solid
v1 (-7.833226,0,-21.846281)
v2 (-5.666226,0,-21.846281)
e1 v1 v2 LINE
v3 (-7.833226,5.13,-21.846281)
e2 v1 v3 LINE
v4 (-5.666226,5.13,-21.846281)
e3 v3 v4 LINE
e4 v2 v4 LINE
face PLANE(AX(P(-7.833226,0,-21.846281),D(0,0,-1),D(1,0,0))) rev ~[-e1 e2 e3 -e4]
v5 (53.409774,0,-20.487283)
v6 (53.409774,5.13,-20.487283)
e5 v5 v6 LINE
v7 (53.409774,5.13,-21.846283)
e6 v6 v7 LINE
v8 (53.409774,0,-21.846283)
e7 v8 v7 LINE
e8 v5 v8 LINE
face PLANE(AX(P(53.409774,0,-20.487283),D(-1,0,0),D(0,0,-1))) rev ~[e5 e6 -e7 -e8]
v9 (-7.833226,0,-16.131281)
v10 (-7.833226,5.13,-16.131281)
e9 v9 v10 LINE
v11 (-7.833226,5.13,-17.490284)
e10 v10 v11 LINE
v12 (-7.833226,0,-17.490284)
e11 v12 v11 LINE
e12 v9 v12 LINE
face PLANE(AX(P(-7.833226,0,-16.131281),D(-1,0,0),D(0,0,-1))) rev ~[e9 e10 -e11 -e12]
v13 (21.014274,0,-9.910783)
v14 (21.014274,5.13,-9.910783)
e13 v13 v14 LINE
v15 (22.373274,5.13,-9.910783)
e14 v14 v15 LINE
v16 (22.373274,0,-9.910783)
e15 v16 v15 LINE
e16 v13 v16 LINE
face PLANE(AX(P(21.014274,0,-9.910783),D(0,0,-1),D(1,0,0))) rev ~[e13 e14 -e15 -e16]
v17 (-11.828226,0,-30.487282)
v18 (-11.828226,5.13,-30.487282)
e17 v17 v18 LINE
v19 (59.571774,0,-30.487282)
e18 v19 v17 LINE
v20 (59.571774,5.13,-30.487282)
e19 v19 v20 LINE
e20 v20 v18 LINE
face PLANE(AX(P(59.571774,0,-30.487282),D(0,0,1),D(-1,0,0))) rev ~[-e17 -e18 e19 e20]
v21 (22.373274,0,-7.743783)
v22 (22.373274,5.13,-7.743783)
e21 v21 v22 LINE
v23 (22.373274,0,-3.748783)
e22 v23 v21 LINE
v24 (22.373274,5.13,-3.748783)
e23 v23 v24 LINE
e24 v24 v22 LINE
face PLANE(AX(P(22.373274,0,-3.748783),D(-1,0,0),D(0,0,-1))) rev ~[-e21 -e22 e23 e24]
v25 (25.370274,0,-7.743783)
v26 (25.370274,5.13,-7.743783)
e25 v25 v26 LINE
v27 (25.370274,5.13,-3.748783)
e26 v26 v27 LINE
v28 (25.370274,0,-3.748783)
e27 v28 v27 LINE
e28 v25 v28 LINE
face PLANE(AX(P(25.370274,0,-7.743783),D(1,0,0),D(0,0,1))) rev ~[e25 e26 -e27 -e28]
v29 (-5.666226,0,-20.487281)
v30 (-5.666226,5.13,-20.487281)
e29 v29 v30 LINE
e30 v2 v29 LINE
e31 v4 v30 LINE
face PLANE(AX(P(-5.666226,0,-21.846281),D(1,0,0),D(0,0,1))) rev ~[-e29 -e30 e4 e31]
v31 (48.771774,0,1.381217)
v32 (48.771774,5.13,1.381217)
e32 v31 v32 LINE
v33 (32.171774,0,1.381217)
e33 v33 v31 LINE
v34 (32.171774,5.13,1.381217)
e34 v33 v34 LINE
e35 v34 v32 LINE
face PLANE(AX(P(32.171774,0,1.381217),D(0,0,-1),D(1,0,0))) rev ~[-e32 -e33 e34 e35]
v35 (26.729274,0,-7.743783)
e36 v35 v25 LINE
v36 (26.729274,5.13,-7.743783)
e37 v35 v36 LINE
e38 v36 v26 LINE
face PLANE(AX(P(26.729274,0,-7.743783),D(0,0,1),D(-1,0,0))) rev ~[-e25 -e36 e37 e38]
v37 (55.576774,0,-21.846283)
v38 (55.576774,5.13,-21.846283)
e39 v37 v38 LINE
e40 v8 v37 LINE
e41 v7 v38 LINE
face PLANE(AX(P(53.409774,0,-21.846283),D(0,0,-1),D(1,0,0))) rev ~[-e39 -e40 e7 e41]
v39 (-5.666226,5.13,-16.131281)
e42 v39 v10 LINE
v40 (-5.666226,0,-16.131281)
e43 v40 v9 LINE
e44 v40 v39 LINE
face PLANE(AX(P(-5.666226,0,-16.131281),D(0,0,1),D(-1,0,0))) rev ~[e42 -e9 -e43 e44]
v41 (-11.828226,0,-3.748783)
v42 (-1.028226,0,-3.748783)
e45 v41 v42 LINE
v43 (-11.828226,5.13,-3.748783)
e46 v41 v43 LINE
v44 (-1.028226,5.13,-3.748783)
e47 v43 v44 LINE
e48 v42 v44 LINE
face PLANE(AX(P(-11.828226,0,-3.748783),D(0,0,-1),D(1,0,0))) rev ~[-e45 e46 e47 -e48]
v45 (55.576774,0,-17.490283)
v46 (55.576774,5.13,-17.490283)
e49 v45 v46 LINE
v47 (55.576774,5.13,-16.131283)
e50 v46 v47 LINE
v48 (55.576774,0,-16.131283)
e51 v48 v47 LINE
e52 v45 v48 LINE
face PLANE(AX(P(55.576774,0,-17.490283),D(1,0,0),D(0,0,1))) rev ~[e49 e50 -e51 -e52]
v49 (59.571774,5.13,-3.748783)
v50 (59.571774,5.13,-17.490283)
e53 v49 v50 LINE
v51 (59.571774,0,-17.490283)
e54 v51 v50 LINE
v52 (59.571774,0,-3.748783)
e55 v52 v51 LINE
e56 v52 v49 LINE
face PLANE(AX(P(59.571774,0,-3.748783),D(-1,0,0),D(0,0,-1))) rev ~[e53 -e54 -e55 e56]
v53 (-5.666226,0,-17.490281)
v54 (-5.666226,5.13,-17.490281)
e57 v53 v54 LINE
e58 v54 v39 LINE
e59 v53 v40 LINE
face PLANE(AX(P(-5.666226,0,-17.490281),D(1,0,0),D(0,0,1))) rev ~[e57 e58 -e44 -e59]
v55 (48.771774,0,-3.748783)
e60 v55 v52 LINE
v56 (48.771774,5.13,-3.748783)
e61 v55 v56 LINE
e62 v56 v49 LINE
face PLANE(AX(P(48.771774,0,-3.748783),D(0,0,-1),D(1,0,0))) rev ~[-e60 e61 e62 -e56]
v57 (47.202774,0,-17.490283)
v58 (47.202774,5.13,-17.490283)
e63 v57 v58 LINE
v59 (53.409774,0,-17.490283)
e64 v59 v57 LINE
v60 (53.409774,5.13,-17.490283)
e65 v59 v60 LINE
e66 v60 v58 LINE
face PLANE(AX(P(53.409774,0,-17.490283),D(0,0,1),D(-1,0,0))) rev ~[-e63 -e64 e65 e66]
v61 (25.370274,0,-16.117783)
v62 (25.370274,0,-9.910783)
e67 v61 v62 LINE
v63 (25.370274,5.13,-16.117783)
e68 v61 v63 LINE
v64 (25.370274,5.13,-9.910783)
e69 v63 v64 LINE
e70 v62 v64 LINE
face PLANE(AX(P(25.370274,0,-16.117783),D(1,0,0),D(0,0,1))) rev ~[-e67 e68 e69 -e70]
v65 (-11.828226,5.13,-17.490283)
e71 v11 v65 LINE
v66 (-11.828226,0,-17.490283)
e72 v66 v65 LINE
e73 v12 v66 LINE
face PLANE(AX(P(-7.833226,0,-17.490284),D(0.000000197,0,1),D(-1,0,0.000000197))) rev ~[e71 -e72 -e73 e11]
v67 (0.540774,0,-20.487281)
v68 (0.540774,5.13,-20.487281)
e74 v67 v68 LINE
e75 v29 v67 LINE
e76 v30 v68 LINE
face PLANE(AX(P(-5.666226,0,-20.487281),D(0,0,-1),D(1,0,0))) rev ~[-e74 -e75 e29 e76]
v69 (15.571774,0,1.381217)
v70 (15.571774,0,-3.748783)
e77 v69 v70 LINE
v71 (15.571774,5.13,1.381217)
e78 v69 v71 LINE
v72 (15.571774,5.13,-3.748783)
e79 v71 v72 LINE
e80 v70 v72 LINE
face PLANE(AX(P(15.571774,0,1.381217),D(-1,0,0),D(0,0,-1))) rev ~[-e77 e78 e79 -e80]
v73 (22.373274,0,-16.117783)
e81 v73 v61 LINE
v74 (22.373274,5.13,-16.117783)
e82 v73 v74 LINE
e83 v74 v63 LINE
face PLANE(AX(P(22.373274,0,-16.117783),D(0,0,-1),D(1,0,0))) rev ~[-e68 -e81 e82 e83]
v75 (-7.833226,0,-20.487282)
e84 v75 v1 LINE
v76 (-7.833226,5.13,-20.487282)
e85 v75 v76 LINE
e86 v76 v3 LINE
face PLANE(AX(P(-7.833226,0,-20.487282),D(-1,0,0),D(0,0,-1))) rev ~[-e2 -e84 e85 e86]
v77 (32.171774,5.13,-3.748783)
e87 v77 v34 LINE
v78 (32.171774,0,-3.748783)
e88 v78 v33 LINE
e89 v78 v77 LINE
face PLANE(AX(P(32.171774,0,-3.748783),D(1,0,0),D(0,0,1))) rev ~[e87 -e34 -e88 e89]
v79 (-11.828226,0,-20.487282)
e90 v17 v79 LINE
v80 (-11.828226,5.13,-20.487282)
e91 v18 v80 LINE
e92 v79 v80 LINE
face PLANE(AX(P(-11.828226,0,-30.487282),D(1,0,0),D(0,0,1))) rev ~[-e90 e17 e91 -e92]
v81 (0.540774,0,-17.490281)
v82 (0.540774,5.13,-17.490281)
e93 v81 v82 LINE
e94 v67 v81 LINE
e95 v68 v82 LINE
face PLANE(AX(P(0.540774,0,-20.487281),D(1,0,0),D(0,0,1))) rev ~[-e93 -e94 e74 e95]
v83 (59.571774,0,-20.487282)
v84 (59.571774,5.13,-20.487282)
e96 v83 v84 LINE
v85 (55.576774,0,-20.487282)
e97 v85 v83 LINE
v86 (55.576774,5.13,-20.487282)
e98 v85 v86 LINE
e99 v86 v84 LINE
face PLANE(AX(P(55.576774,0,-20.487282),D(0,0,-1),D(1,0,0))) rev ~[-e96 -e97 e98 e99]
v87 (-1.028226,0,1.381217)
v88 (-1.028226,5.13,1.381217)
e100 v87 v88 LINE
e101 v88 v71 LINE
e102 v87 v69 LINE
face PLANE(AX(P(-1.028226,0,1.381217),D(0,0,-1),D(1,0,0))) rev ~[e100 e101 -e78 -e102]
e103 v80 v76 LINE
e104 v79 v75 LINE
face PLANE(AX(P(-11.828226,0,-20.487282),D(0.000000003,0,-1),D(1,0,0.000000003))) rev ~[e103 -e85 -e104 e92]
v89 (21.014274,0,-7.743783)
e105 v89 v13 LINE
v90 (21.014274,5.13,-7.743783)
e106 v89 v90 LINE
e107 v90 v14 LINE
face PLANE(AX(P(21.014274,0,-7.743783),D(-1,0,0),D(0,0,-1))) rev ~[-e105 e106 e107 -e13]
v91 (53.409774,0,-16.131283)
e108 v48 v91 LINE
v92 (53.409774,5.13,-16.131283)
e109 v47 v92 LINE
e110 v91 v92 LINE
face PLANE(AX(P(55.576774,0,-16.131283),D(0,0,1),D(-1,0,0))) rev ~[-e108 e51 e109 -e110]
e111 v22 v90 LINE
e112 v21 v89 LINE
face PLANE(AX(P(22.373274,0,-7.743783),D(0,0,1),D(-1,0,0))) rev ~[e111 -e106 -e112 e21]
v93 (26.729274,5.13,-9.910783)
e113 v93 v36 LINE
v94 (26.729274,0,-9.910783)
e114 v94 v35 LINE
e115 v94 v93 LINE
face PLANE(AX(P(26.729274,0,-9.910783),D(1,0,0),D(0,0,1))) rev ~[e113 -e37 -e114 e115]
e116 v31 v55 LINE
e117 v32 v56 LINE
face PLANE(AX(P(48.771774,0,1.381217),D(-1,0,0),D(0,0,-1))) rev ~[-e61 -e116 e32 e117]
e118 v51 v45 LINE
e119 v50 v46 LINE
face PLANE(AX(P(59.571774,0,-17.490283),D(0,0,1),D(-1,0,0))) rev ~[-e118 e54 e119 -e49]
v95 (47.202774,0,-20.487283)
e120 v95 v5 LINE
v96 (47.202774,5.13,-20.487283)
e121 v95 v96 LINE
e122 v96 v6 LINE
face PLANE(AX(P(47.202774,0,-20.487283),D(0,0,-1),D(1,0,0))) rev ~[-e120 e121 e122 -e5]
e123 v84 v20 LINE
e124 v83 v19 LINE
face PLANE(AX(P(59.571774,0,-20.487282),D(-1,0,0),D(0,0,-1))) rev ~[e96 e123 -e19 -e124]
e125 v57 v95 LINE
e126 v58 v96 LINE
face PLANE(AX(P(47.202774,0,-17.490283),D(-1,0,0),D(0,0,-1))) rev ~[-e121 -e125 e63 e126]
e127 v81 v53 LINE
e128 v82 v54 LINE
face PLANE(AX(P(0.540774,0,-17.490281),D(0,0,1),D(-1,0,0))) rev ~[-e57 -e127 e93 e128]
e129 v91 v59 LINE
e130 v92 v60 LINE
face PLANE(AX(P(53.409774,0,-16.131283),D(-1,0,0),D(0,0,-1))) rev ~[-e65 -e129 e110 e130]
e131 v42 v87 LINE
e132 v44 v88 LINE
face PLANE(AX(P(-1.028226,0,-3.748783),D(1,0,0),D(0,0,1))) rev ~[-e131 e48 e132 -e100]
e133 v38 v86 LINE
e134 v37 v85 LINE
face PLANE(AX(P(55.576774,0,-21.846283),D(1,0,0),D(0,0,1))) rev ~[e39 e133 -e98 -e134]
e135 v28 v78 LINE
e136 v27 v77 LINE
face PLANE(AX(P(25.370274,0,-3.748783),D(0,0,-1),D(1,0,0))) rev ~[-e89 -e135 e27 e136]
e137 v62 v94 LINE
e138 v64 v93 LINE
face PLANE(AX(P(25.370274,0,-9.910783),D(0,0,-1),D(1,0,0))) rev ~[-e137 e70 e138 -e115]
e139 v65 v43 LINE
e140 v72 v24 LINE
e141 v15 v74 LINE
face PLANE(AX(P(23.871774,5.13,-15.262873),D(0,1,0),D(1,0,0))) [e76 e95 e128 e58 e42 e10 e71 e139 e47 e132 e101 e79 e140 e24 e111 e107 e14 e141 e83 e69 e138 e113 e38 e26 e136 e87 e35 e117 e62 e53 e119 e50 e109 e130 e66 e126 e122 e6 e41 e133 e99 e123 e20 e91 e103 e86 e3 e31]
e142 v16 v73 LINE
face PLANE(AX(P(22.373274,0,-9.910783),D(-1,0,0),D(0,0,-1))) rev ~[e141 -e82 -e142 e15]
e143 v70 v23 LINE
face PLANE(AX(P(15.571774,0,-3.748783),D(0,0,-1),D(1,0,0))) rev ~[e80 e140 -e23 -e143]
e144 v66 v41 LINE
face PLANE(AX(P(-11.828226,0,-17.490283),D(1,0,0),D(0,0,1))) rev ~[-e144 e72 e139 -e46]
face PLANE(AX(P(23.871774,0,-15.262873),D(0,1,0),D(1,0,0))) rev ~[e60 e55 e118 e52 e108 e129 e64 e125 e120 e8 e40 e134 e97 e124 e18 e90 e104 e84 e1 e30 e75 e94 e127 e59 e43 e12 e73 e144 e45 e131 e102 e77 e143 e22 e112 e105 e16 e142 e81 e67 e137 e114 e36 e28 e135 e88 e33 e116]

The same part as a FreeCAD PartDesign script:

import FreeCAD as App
import Part
import Sketcher
from FreeCAD import Vector
Q = App.Units.Quantity

doc = App.newDocument("Part")
params = doc.addObject("Spreadsheet::Sheet", "Params")
for row, (alias, value) in enumerate([
    ("sketch1_height", "10 mm"),
    ("sketch1_width", "10.8 mm"),
    ("sketch1_width2", "71.4 mm"),
    ("sketch1_width3", "16.6 mm"),
    ("sketch1_height2", "5.13 mm"),
    ("pad1_length", "5.13 mm"),
], start=1):
    params.set(f"A{row}", alias)
    params.set(f"B{row}", "=" + value)
    params.setAlias(f"B{row}", alias)

body = doc.addObject("PartDesign::Body", "Body")

sketch1 = body.newObject("Sketcher::SketchObject", "Sketch")
sketch1.AttachmentSupport = (doc.getObject("XZ_Plane"), [""])
sketch1.MapMode = "FlatFace"
sketch1.addGeometry([
    Part.LineSegment(Vector(48.8, -3.7, 0), Vector(59.6, -3.7, 0)),
    Part.LineSegment(Vector(59.6, -3.7, 0), Vector(59.6, -17.5, 0)),
    Part.LineSegment(Vector(59.6, -17.5, 0), Vector(55.6, -17.5, 0)),
    Part.LineSegment(Vector(55.6, -17.5, 0), Vector(55.6, -16.1, 0)),
    Part.LineSegment(Vector(55.6, -16.1, 0), Vector(53.4, -16.1, 0)),
    Part.LineSegment(Vector(53.4, -16.1, 0), Vector(53.4, -17.5, 0)),
    Part.LineSegment(Vector(53.4, -17.5, 0), Vector(47.2, -17.5, 0)),
    Part.LineSegment(Vector(47.2, -17.5, 0), Vector(47.2, -20.5, 0)),
    Part.LineSegment(Vector(47.2, -20.5, 0), Vector(53.4, -20.5, 0)),
    Part.LineSegment(Vector(53.4, -20.5, 0), Vector(53.4, -21.8, 0)),
    Part.LineSegment(Vector(53.4, -21.8, 0), Vector(55.6, -21.8, 0)),
    Part.LineSegment(Vector(55.6, -21.8, 0), Vector(55.6, -20.5, 0)),
    Part.LineSegment(Vector(55.6, -20.5, 0), Vector(59.6, -20.5, 0)),
    Part.LineSegment(Vector(59.6, -20.5, 0), Vector(59.6, -30.5, 0)),
    Part.LineSegment(Vector(59.6, -30.5, 0), Vector(-11.8, -30.5, 0)),
    Part.LineSegment(Vector(-11.8, -30.5, 0), Vector(-11.8, -20.5, 0)),
    Part.LineSegment(Vector(-11.8, -20.5, 0), Vector(-7.8, -20.5, 0)),
    Part.LineSegment(Vector(-7.8, -20.5, 0), Vector(-7.8, -21.8, 0)),
    Part.LineSegment(Vector(-7.8, -21.8, 0), Vector(-5.7, -21.8, 0)),
    Part.LineSegment(Vector(-5.7, -21.8, 0), Vector(-5.7, -20.5, 0)),
    Part.LineSegment(Vector(-5.7, -20.5, 0), Vector(0.5, -20.5, 0)),
    Part.LineSegment(Vector(0.5, -20.5, 0), Vector(0.5, -17.5, 0)),
    Part.LineSegment(Vector(0.5, -17.5, 0), Vector(-5.7, -17.5, 0)),
    Part.LineSegment(Vector(-5.7, -17.5, 0), Vector(-5.7, -16.1, 0)),
    Part.LineSegment(Vector(-5.7, -16.1, 0), Vector(-7.8, -16.1, 0)),
    Part.LineSegment(Vector(-7.8, -16.1, 0), Vector(-7.8, -17.5, 0)),
    Part.LineSegment(Vector(-7.8, -17.5, 0), Vector(-11.8, -17.5, 0)),
    Part.LineSegment(Vector(-11.8, -17.5, 0), Vector(-11.8, -3.7, 0)),
    Part.LineSegment(Vector(-11.8, -3.7, 0), Vector(-1, -3.7, 0)),
    Part.LineSegment(Vector(-1, -3.7, 0), Vector(-1, 1.4, 0)),
    Part.LineSegment(Vector(-1, 1.4, 0), Vector(15.6, 1.4, 0)),
    Part.LineSegment(Vector(15.6, 1.4, 0), Vector(15.6, -3.7, 0)),
    Part.LineSegment(Vector(15.6, -3.7, 0), Vector(22.4, -3.7, 0)),
    Part.LineSegment(Vector(22.4, -3.7, 0), Vector(22.4, -7.7, 0)),
    Part.LineSegment(Vector(22.4, -7.7, 0), Vector(21, -7.7, 0)),
    Part.LineSegment(Vector(21, -7.7, 0), Vector(21, -9.9, 0)),
    Part.LineSegment(Vector(21, -9.9, 0), Vector(22.4, -9.9, 0)),
    Part.LineSegment(Vector(22.4, -9.9, 0), Vector(22.4, -16.1, 0)),
    Part.LineSegment(Vector(22.4, -16.1, 0), Vector(25.4, -16.1, 0)),
    Part.LineSegment(Vector(25.4, -16.1, 0), Vector(25.4, -9.9, 0)),
    Part.LineSegment(Vector(25.4, -9.9, 0), Vector(26.7, -9.9, 0)),
    Part.LineSegment(Vector(26.7, -9.9, 0), Vector(26.7, -7.7, 0)),
    Part.LineSegment(Vector(26.7, -7.7, 0), Vector(25.4, -7.7, 0)),
    Part.LineSegment(Vector(25.4, -7.7, 0), Vector(25.4, -3.7, 0)),
    Part.LineSegment(Vector(25.4, -3.7, 0), Vector(32.2, -3.7, 0)),
    Part.LineSegment(Vector(32.2, -3.7, 0), Vector(32.2, 1.4, 0)),
    Part.LineSegment(Vector(32.2, 1.4, 0), Vector(48.8, 1.4, 0)),
    Part.LineSegment(Vector(48.8, 1.4, 0), Vector(48.8, -3.7, 0)),
], False)
sketch1.addConstraint([
    Sketcher.Constraint("Coincident", 0, 2, 1, 1),
    Sketcher.Constraint("Coincident", 1, 2, 2, 1),
    Sketcher.Constraint("Coincident", 2, 2, 3, 1),
    Sketcher.Constraint("Coincident", 3, 2, 4, 1),
    Sketcher.Constraint("Coincident", 4, 2, 5, 1),
    Sketcher.Constraint("Coincident", 5, 2, 6, 1),
    Sketcher.Constraint("Coincident", 6, 2, 7, 1),
    Sketcher.Constraint("Coincident", 7, 2, 8, 1),
    Sketcher.Constraint("Coincident", 8, 2, 9, 1),
    Sketcher.Constraint("Coincident", 9, 2, 10, 1),
    Sketcher.Constraint("Coincident", 10, 2, 11, 1),
    Sketcher.Constraint("Coincident", 11, 2, 12, 1),
    Sketcher.Constraint("Coincident", 12, 2, 13, 1),
    Sketcher.Constraint("Coincident", 13, 2, 14, 1),
    Sketcher.Constraint("Coincident", 14, 2, 15, 1),
    Sketcher.Constraint("Coincident", 15, 2, 16, 1),
    Sketcher.Constraint("Coincident", 16, 2, 17, 1),
    Sketcher.Constraint("Coincident", 17, 2, 18, 1),
    Sketcher.Constraint("Coincident", 18, 2, 19, 1),
    Sketcher.Constraint("Coincident", 19, 2, 20, 1),
    Sketcher.Constraint("Coincident", 20, 2, 21, 1),
    Sketcher.Constraint("Coincident", 21, 2, 22, 1),
    Sketcher.Constraint("Coincident", 22, 2, 23, 1),
    Sketcher.Constraint("Coincident", 23, 2, 24, 1),
    Sketcher.Constraint("Coincident", 24, 2, 25, 1),
    Sketcher.Constraint("Coincident", 25, 2, 26, 1),
    Sketcher.Constraint("Coincident", 26, 2, 27, 1),
    Sketcher.Constraint("Coincident", 27, 2, 28, 1),
    Sketcher.Constraint("Coincident", 28, 2, 29, 1),
    Sketcher.Constraint("Coincident", 29, 2, 30, 1),
    Sketcher.Constraint("Coincident", 30, 2, 31, 1),
    Sketcher.Constraint("Coincident", 31, 2, 32, 1),
    Sketcher.Constraint("Coincident", 32, 2, 33, 1),
    Sketcher.Constraint("Coincident", 33, 2, 34, 1),
    Sketcher.Constraint("Coincident", 34, 2, 35, 1),
    Sketcher.Constraint("Coincident", 35, 2, 36, 1),
    Sketcher.Constraint("Coincident", 36, 2, 37, 1),
    Sketcher.Constraint("Coincident", 37, 2, 38, 1),
    Sketcher.Constraint("Coincident", 38, 2, 39, 1),
    Sketcher.Constraint("Coincident", 39, 2, 40, 1),
    Sketcher.Constraint("Coincident", 40, 2, 41, 1),
    Sketcher.Constraint("Coincident", 41, 2, 42, 1),
    Sketcher.Constraint("Coincident", 42, 2, 43, 1),
    Sketcher.Constraint("Coincident", 43, 2, 44, 1),
    Sketcher.Constraint("Coincident", 44, 2, 45, 1),
    Sketcher.Constraint("Coincident", 45, 2, 46, 1),
    Sketcher.Constraint("Coincident", 46, 2, 47, 1),
    Sketcher.Constraint("Coincident", 47, 2, 0, 1),
    Sketcher.Constraint("Horizontal", 0),
    Sketcher.Constraint("Vertical", 1),
    Sketcher.Constraint("Horizontal", 2),
    Sketcher.Constraint("Vertical", 3),
    Sketcher.Constraint("Horizontal", 4),
    Sketcher.Constraint("Vertical", 5),
    Sketcher.Constraint("Horizontal", 6),
    Sketcher.Constraint("Vertical", 7),
    Sketcher.Constraint("Horizontal", 8),
    Sketcher.Constraint("Vertical", 9),
    Sketcher.Constraint("Horizontal", 10),
    Sketcher.Constraint("Vertical", 11),
    Sketcher.Constraint("Horizontal", 12),
    Sketcher.Constraint("Vertical", 13),
    Sketcher.Constraint("Horizontal", 14),
    Sketcher.Constraint("Vertical", 15),
    Sketcher.Constraint("Horizontal", 16),
    Sketcher.Constraint("Vertical", 17),
    Sketcher.Constraint("Horizontal", 18),
    Sketcher.Constraint("Vertical", 19),
    Sketcher.Constraint("Horizontal", 20),
    Sketcher.Constraint("Vertical", 21),
    Sketcher.Constraint("Horizontal", 22),
    Sketcher.Constraint("Vertical", 23),
    Sketcher.Constraint("Horizontal", 24),
    Sketcher.Constraint("Vertical", 25),
    Sketcher.Constraint("Horizontal", 26),
    Sketcher.Constraint("Vertical", 27),
    Sketcher.Constraint("Horizontal", 28),
    Sketcher.Constraint("Vertical", 29),
    Sketcher.Constraint("Horizontal", 30),
    Sketcher.Constraint("Vertical", 31),
    Sketcher.Constraint("Horizontal", 32),
    Sketcher.Constraint("Vertical", 33),
    Sketcher.Constraint("Horizontal", 34),
    Sketcher.Constraint("Vertical", 35),
    Sketcher.Constraint("Horizontal", 36),
    Sketcher.Constraint("Vertical", 37),
    Sketcher.Constraint("Horizontal", 38),
    Sketcher.Constraint("Vertical", 39),
    Sketcher.Constraint("Horizontal", 40),
    Sketcher.Constraint("Vertical", 41),
    Sketcher.Constraint("Horizontal", 42),
    Sketcher.Constraint("Vertical", 43),
    Sketcher.Constraint("Horizontal", 44),
    Sketcher.Constraint("Vertical", 45),
    Sketcher.Constraint("Horizontal", 46),
    Sketcher.Constraint("Vertical", 47),
    Sketcher.Constraint("Horizontal", 2, 2, 5, 2),
    Sketcher.Constraint("Horizontal", 8, 2, 11, 2),
    Sketcher.Constraint("Horizontal", 12, 2, 15, 2),
    Sketcher.Constraint("Horizontal", 16, 2, 19, 2),
    Sketcher.Constraint("Horizontal", 6, 2, 25, 2),
    Sketcher.Constraint("Horizontal", 0, 2, 27, 2),
    Sketcher.Constraint("Horizontal", 28, 2, 31, 2),
    Sketcher.Constraint("Horizontal", 36, 2, 39, 2),
    Sketcher.Constraint("Horizontal", 34, 2, 41, 2),
    Sketcher.Constraint("Horizontal", 32, 2, 43, 2),
    Sketcher.Constraint("Horizontal", 30, 2, 45, 2),
    Sketcher.Constraint("Vertical", 5, 2, 8, 2),
    Sketcher.Constraint("Vertical", 3, 2, 10, 2),
    Sketcher.Constraint("Vertical", 1, 2, 12, 2),
    Sketcher.Constraint("Vertical", 19, 2, 22, 2),
    Sketcher.Constraint("Vertical", 17, 2, 24, 2),
    Sketcher.Constraint("Vertical", 15, 2, 26, 2),
    Sketcher.Constraint("Vertical", 33, 2, 36, 2),
    Sketcher.Constraint("Vertical", 39, 2, 42, 2),
    Sketcher.Constraint("Equal", 12, 16),
    Sketcher.Constraint("Equal", 10, 18),
    Sketcher.Constraint("Equal", 8, 20),
    Sketcher.Constraint("Equal", 0, 28),
    Sketcher.Constraint("Equal", 36, 40),
    Sketcher.Constraint("Equal", 32, 44),
    Sketcher.Constraint("Equal", 30, 46),
    Sketcher.Constraint("Equal", 42, 3),
    Sketcher.Constraint("Equal", 38, 7),
    Sketcher.Constraint("Equal", 5, 9),
    Sketcher.Constraint("Equal", 9, 17),
    Sketcher.Constraint("Equal", 7, 21),
    Sketcher.Constraint("Equal", 19, 23),
    Sketcher.Constraint("Equal", 26, 33),
    Sketcher.Constraint("Equal", 24, 35),
    Sketcher.Constraint("Equal", 22, 37),
    Sketcher.Constraint("DistanceY", 13, 2, 13, 1, Q("10 mm")),
    Sketcher.Constraint("DistanceX", 0, 1, 0, 2, Q("10.8 mm")),
    Sketcher.Constraint("DistanceX", 14, 2, 14, 1, Q("71.4 mm")),
    Sketcher.Constraint("DistanceX", 30, 1, 30, 2, Q("16.6 mm")),
    Sketcher.Constraint("DistanceY", 29, 1, 29, 2, Q("5.13 mm")),
    Sketcher.Constraint("DistanceX", 2, 2, 2, 1, Q("3.995 mm")),
    Sketcher.Constraint("DistanceX", 4, 2, 4, 1, Q("2.167 mm")),
    Sketcher.Constraint("DistanceX", 6, 2, 6, 1, Q("6.207 mm")),
    Sketcher.Constraint("DistanceX", 34, 2, 34, 1, Q("1.359 mm")),
    Sketcher.Constraint("DistanceX", 38, 1, 38, 2, Q("2.997 mm")),
    Sketcher.Constraint("DistanceY", 1, 2, 1, 1, Q("13.7415 mm")),
    Sketcher.Constraint("DistanceY", 11, 2, -1, 1, Q("20.487282 mm")),
    Sketcher.Constraint("DistanceX", -1, 1, 0, 2, Q("59.571774 mm")),
])
sketch1.setExpression("Constraints[131]", "Params.sketch1_height")
sketch1.setExpression("Constraints[132]", "Params.sketch1_width")
sketch1.setExpression("Constraints[133]", "Params.sketch1_width2")
sketch1.setExpression("Constraints[134]", "Params.sketch1_width3")
sketch1.setExpression("Constraints[135]", "Params.sketch1_height2")
pad1 = body.newObject("PartDesign::Pad", "Pad")
pad1.Profile = sketch1
pad1.setExpression("Length", "Params.pad1_length")
pad1.Reversed = True

doc.recompute()
